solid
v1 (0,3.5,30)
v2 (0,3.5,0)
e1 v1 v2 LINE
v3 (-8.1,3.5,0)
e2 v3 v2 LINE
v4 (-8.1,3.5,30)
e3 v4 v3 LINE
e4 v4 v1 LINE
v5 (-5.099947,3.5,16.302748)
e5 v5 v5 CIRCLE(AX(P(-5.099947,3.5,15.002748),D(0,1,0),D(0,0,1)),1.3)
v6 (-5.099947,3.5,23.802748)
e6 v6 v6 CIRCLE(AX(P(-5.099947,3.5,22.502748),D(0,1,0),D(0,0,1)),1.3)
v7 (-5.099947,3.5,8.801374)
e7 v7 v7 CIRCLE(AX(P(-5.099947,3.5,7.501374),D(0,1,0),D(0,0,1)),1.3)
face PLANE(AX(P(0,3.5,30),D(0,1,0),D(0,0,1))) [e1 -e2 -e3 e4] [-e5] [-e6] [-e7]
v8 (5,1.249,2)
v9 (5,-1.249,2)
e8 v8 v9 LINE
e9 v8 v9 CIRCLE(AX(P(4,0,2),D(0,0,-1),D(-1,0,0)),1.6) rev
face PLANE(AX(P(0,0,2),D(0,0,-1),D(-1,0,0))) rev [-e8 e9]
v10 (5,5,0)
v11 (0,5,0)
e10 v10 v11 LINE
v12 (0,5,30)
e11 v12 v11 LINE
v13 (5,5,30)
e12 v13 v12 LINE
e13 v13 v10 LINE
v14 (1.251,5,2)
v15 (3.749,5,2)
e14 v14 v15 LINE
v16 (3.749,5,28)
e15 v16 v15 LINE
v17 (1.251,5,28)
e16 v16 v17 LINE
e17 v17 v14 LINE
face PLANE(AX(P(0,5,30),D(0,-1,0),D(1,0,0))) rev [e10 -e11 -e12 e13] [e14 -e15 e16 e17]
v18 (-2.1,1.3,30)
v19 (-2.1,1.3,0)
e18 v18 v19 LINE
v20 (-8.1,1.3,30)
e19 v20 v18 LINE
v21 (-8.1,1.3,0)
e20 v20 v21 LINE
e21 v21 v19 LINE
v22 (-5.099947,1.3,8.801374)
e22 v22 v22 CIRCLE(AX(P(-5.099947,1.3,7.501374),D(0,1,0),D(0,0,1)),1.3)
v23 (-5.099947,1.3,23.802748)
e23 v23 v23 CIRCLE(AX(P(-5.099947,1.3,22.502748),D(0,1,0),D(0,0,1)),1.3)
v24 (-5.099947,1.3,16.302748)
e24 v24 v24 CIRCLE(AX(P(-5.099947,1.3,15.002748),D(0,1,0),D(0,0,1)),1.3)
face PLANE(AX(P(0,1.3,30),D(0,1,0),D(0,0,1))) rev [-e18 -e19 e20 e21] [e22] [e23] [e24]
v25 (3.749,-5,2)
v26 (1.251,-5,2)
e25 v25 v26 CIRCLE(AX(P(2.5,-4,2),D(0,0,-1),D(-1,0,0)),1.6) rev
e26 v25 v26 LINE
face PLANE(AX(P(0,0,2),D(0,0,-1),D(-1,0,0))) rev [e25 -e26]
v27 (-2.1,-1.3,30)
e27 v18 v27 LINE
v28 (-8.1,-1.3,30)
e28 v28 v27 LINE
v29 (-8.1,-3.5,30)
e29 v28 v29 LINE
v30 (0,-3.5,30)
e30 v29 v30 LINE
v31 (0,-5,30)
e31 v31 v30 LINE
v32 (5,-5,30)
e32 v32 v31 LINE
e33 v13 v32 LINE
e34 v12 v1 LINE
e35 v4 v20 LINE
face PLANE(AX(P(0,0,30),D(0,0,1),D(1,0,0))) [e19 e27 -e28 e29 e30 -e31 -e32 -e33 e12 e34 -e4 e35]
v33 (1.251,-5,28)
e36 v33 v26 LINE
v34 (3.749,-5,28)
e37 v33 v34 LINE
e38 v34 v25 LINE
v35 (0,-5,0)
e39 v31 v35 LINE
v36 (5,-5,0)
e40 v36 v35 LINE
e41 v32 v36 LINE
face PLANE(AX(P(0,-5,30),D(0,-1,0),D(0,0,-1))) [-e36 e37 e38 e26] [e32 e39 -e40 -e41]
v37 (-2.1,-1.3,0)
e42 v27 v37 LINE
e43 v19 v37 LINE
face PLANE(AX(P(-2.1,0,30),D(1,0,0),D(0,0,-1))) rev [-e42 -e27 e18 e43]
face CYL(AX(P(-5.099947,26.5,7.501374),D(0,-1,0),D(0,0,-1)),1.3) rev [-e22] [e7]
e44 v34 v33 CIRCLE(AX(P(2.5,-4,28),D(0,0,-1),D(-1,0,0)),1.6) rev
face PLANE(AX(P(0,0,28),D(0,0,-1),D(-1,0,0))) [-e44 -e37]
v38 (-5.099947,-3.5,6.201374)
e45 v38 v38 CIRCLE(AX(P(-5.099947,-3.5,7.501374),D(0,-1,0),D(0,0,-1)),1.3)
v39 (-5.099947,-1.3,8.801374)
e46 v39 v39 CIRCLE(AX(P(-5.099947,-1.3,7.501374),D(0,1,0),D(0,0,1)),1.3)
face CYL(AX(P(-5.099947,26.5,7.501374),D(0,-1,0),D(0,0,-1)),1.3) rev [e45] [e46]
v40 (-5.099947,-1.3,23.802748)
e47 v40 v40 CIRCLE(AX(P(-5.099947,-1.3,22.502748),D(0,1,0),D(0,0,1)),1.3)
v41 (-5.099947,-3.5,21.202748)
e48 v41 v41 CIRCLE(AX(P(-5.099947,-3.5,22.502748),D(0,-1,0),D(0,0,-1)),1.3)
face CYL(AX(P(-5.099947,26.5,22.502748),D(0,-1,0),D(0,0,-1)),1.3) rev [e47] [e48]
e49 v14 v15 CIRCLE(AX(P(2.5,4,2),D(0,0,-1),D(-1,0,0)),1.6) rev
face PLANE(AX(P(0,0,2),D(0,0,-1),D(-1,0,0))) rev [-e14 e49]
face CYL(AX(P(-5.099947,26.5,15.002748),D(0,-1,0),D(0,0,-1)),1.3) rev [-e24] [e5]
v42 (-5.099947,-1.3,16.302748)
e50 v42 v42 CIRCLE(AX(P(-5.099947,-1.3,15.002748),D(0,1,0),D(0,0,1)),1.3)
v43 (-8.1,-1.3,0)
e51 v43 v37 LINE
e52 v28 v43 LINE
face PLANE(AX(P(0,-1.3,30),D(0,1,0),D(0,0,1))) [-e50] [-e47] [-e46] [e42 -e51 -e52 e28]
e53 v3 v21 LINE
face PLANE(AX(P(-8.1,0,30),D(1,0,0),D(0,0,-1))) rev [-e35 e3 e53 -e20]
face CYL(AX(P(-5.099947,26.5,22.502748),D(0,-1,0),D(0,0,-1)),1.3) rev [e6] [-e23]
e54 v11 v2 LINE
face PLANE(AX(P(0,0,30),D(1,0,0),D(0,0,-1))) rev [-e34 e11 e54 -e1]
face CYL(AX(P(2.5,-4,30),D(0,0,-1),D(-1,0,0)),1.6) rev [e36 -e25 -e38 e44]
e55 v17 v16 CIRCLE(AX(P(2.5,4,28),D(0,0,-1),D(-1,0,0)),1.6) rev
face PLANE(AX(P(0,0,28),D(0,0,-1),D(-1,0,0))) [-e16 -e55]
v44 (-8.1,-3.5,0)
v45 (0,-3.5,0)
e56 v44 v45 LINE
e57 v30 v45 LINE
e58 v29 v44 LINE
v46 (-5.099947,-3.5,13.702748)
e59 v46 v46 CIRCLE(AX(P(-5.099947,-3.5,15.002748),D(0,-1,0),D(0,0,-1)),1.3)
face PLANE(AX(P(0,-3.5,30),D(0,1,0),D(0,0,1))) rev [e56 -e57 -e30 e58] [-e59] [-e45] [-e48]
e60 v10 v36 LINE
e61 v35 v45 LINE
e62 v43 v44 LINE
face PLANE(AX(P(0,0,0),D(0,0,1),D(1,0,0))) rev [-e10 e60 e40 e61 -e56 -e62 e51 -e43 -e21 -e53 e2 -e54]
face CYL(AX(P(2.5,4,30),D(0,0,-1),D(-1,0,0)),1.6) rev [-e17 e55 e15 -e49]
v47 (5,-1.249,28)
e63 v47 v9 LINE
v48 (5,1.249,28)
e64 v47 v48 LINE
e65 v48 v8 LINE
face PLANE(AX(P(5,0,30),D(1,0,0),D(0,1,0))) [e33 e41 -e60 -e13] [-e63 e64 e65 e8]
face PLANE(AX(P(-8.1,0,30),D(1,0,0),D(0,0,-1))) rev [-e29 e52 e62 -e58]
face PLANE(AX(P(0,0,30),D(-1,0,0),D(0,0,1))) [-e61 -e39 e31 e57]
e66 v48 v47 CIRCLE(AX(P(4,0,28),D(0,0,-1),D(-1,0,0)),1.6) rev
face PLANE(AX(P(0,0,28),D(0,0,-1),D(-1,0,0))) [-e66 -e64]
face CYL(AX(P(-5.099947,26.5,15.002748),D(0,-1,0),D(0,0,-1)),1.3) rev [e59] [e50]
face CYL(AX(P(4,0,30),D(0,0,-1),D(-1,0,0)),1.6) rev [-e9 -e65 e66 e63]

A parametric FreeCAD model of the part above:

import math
import FreeCAD as App
import Part
import Sketcher
Q = App.Units.Quantity


def add_polygon(sketch, points):
    """Adds a closed chain of lines whose ends are joined by coincident constraints."""
    first, n = sketch.GeometryCount, len(points)
    for a, b in zip(points, points[1:] + points[:1]):
        sketch.addGeometry(Part.LineSegment(App.Vector(*a, 0), App.Vector(*b, 0)), False)
    for i in range(n):
        sketch.addConstraint(Sketcher.Constraint("Coincident", first + i, 2, first + (i + 1) % n, 1))

doc = App.newDocument("Part")
body = doc.addObject("PartDesign::Body", "Body")

sketch1 = body.newObject("Sketcher::SketchObject", "Sketch")
sketch1.AttachmentSupport = (doc.getObject("XY_Plane"), [""])
sketch1.MapMode = "FlatFace"
sketch1.addGeometry([
    Part.LineSegment(App.Vector(0, 3.5, 0), App.Vector(-8.1, 3.5, 0)),
    Part.LineSegment(App.Vector(-8.1, 3.5, 0), App.Vector(-8.1, 1.3, 0)),
    Part.LineSegment(App.Vector(-8.1, 1.3, 0), App.Vector(-2.1, 1.3, 0)),
    Part.LineSegment(App.Vector(-2.1, 1.3, 0), App.Vector(-2.1, -1.3, 0)),
    Part.LineSegment(App.Vector(-2.1, -1.3, 0), App.Vector(-8.1, -1.3, 0)),
    Part.LineSegment(App.Vector(-8.1, -1.3, 0), App.Vector(-8.1, -3.5, 0)),
    Part.LineSegment(App.Vector(-8.1, -3.5, 0), App.Vector(0, -3.5, 0)),
    Part.LineSegment(App.Vector(0, -3.5, 0), App.Vector(0, -5, 0)),
    Part.LineSegment(App.Vector(0, -5, 0), App.Vector(1.251, -5, 0)),
    Part.ArcOfCircle(Part.Circle(App.Vector(2.5, -4, 0), App.Vector(0, 0, 1), 1.6), math.radians(-38.682187), math.radians(218.682187)),
    Part.LineSegment(App.Vector(3.749, -5, 0), App.Vector(5, -5, 0)),
    Part.LineSegment(App.Vector(5, -5, 0), App.Vector(5, -1.249, 0)),
    Part.ArcOfCircle(Part.Circle(App.Vector(4, 0, 0), App.Vector(0, 0, 1), 1.6), math.radians(51.317813), math.radians(308.682187)),
    Part.LineSegment(App.Vector(5, 1.249, 0), App.Vector(5, 5, 0)),
    Part.LineSegment(App.Vector(5, 5, 0), App.Vector(3.749, 5, 0)),
    Part.ArcOfCircle(Part.Circle(App.Vector(2.5, 4, 0), App.Vector(0, 0, 1), 1.6), math.radians(141.317813), math.radians(398.682187)),
    Part.LineSegment(App.Vector(1.251, 5, 0), App.Vector(0, 5, 0)),
    Part.LineSegment(App.Vector(0, 5, 0), App.Vector(0, 3.5, 0)),
], False)
sketch1.addConstraint([
    Sketcher.Constraint("Coincident", 0, 2, 1, 1),
    Sketcher.Constraint("Coincident", 1, 2, 2, 1),
    Sketcher.Constraint("Coincident", 2, 2, 3, 1),
    Sketcher.Constraint("Coincident", 3, 2, 4, 1),
    Sketcher.Constraint("Coincident", 4, 2, 5, 1),
    Sketcher.Constraint("Coincident", 5, 2, 6, 1),
    Sketcher.Constraint("Coincident", 6, 2, 7, 1),
    Sketcher.Constraint("Coincident", 7, 2, 8, 1),
    Sketcher.Constraint("Coincident", 8, 2, 9, 2),
    Sketcher.Constraint("Coincident", 9, 1, 10, 1),
    Sketcher.Constraint("Coincident", 10, 2, 11, 1),
    Sketcher.Constraint("Coincident", 11, 2, 12, 2),
    Sketcher.Constraint("Coincident", 12, 1, 13, 1),
    Sketcher.Constraint("Coincident", 13, 2, 14, 1),
    Sketcher.Constraint("Coincident", 14, 2, 15, 2),
    Sketcher.Constraint("Coincident", 15, 1, 16, 1),
    Sketcher.Constraint("Coincident", 16, 2, 17, 1),
    Sketcher.Constraint("Coincident", 17, 2, 0, 1),
    Sketcher.Constraint("Horizontal", 0),
    Sketcher.Constraint("Vertical", 1),
    Sketcher.Constraint("Horizontal", 2),
    Sketcher.Constraint("Vertical", 3),
    Sketcher.Constraint("Horizontal", 4),
    Sketcher.Constraint("Vertical", 5),
    Sketcher.Constraint("Horizontal", 6),
    Sketcher.Constraint("Vertical", 7),
    Sketcher.Constraint("Horizontal", 8),
    Sketcher.Constraint("Horizontal", 10),
    Sketcher.Constraint("Vertical", 11),
    Sketcher.Constraint("Vertical", 13),
    Sketcher.Constraint("Horizontal", 14),
    Sketcher.Constraint("Horizontal", 16),
    Sketcher.Constraint("Vertical", 17),
    Sketcher.Constraint("Equal", 9, 12),
    Sketcher.Constraint("Equal", 12, 15),
    Sketcher.Constraint("Symmetric", 7, 2, 16, 2, -1, 1),
    Sketcher.Constraint("Symmetric", 9, 3, 15, 3, -1),
    Sketcher.Constraint("Symmetric", 1, 2, 4, 2, -1),
    Sketcher.Constraint("Symmetric", 11, 2, 12, 1, -1),
    Sketcher.Constraint("Symmetric", 6, 2, 17, 2, -1),
    Sketcher.Constraint("Horizontal", 8, 2, 9, 1),
    Sketcher.Constraint("Horizontal", 14, 2, 15, 1),
    Sketcher.Constraint("Equal", 8, 10),
    Sketcher.Constraint("Radius", 9, Q("1.6 mm")),
    Sketcher.Constraint("DistanceX", 2, 1, 2, 2, Q("6 mm")),
    Sketcher.Constraint("DistanceX", 0, 2, 0, 1, Q("8.1 mm")),
    Sketcher.Constraint("DistanceY", 1, 2, 1, 1, Q("2.2 mm")),
    Sketcher.Constraint("DistanceY", 3, 2, 3, 1, Q("2.6 mm")),
    Sketcher.Constraint("DistanceY", 7, 2, 7, 1, Q("1.5 mm")),
    Sketcher.Constraint("DistanceY", 9, 3, -1, 1, Q("4 mm")),
    Sketcher.Constraint("DistanceX", -1, 1, 12, 3, Q("4 mm")),
    Sketcher.Constraint("DistanceX", -1, 1, 10, 2, Q("5 mm")),
])
pad1 = body.newObject("PartDesign::Pad", "Pad")
pad1.Profile = sketch1
pad1.Length = 30

sketch2 = body.newObject("Sketcher::SketchObject", "Sketch001")
sketch2.AttachmentSupport = (doc.getObject("XZ_Plane"), [""])
sketch2.MapMode = "FlatFace"
sketch2.AttachmentOffset = App.Placement(App.Vector(0, 0, 3.5), App.Rotation())
sketch2.addGeometry([
    Part.Circle(App.Vector(-5.099947, 15.002748, 0), App.Vector(0, 0, 1), 1.3),
    Part.Circle(App.Vector(-5.099947, 7.501374, 0), App.Vector(0, 0, 1), 1.3),
    Part.Circle(App.Vector(-5.099947, 22.502748, 0), App.Vector(0, 0, 1), 1.3),
], False)
sketch2.addConstraint([
    Sketcher.Constraint("Equal", 0, 1),
    Sketcher.Constraint("Equal", 1, 2),
    Sketcher.Constraint("Vertical", 0, 3, 1, 3),
    Sketcher.Constraint("Vertical", 1, 3, 2, 3),
    Sketcher.Constraint("Diameter", 0, Q("2.6 mm")),
    Sketcher.Constraint("DistanceY", 0, 3, 2, 3, Q("7.5 mm")),
    Sketcher.Constraint("DistanceY", -1, 1, 0, 3, Q("15.002748 mm")),
    Sketcher.Constraint("DistanceX", 0, 3, -1, 1, Q("5.099947 mm")),
    Sketcher.Constraint("DistanceY", -1, 1, 1, 3, Q("7.501374 mm")),
])
pocket1 = body.newObject("PartDesign::Pocket", "Pocket")
pocket1.Profile = sketch2
pocket1.Length = 30

sketch3 = body.newObject("Sketcher::SketchObject", "Sketch002")
sketch3.AttachmentSupport = (doc.getObject("XY_Plane"), [""])
sketch3.MapMode = "FlatFace"
sketch3.AttachmentOffset = App.Placement(App.Vector(0, 0, 30), App.Rotation())
add_polygon(sketch3, [(0, 5), (0, -5), (5, -5), (5, 5)])
sketch3.addConstraint([
    Sketcher.Constraint("Vertical", 0),
    Sketcher.Constraint("Horizontal", 1),
    Sketcher.Constraint("Vertical", 2),
    Sketcher.Constraint("Horizontal", 3),
    Sketcher.Constraint("Symmetric", 0, 2, 3, 2, -1, 1),
    Sketcher.Constraint("DistanceX", 1, 1, 1, 2, Q("5 mm")),
    Sketcher.Constraint("DistanceY", 0, 2, 0, 1, Q("10 mm")),
])
pad2 = body.newObject("PartDesign::Pad", "Pad001")
pad2.Profile = sketch3
pad2.Length = 2
pad2.Reversed = True

sketch4 = body.newObject("Sketcher::SketchObject", "Sketch003")
sketch4.AttachmentSupport = (doc.getObject("XY_Plane"), [""])
sketch4.MapMode = "FlatFace"
add_polygon(sketch4, [(0, 5), (5, 5), (5, -5), (0, -5)])
sketch4.addConstraint([
    Sketcher.Constraint("Horizontal", 0),
    Sketcher.Constraint("Vertical", 1),
    Sketcher.Constraint("Horizontal", 2),
    Sketcher.Constraint("Vertical", 3),
    Sketcher.Constraint("Symmetric", 2, 2, 3, 2, -1, 1),
    Sketcher.Constraint("DistanceX", 0, 1, 0, 2, Q("5 mm")),
    Sketcher.Constraint("DistanceY", 1, 2, 1, 1, Q("10 mm")),
])
pad3 = body.newObject("PartDesign::Pad", "Pad002")
pad3.Profile = sketch4
pad3.Length = 2

doc.recompute()
